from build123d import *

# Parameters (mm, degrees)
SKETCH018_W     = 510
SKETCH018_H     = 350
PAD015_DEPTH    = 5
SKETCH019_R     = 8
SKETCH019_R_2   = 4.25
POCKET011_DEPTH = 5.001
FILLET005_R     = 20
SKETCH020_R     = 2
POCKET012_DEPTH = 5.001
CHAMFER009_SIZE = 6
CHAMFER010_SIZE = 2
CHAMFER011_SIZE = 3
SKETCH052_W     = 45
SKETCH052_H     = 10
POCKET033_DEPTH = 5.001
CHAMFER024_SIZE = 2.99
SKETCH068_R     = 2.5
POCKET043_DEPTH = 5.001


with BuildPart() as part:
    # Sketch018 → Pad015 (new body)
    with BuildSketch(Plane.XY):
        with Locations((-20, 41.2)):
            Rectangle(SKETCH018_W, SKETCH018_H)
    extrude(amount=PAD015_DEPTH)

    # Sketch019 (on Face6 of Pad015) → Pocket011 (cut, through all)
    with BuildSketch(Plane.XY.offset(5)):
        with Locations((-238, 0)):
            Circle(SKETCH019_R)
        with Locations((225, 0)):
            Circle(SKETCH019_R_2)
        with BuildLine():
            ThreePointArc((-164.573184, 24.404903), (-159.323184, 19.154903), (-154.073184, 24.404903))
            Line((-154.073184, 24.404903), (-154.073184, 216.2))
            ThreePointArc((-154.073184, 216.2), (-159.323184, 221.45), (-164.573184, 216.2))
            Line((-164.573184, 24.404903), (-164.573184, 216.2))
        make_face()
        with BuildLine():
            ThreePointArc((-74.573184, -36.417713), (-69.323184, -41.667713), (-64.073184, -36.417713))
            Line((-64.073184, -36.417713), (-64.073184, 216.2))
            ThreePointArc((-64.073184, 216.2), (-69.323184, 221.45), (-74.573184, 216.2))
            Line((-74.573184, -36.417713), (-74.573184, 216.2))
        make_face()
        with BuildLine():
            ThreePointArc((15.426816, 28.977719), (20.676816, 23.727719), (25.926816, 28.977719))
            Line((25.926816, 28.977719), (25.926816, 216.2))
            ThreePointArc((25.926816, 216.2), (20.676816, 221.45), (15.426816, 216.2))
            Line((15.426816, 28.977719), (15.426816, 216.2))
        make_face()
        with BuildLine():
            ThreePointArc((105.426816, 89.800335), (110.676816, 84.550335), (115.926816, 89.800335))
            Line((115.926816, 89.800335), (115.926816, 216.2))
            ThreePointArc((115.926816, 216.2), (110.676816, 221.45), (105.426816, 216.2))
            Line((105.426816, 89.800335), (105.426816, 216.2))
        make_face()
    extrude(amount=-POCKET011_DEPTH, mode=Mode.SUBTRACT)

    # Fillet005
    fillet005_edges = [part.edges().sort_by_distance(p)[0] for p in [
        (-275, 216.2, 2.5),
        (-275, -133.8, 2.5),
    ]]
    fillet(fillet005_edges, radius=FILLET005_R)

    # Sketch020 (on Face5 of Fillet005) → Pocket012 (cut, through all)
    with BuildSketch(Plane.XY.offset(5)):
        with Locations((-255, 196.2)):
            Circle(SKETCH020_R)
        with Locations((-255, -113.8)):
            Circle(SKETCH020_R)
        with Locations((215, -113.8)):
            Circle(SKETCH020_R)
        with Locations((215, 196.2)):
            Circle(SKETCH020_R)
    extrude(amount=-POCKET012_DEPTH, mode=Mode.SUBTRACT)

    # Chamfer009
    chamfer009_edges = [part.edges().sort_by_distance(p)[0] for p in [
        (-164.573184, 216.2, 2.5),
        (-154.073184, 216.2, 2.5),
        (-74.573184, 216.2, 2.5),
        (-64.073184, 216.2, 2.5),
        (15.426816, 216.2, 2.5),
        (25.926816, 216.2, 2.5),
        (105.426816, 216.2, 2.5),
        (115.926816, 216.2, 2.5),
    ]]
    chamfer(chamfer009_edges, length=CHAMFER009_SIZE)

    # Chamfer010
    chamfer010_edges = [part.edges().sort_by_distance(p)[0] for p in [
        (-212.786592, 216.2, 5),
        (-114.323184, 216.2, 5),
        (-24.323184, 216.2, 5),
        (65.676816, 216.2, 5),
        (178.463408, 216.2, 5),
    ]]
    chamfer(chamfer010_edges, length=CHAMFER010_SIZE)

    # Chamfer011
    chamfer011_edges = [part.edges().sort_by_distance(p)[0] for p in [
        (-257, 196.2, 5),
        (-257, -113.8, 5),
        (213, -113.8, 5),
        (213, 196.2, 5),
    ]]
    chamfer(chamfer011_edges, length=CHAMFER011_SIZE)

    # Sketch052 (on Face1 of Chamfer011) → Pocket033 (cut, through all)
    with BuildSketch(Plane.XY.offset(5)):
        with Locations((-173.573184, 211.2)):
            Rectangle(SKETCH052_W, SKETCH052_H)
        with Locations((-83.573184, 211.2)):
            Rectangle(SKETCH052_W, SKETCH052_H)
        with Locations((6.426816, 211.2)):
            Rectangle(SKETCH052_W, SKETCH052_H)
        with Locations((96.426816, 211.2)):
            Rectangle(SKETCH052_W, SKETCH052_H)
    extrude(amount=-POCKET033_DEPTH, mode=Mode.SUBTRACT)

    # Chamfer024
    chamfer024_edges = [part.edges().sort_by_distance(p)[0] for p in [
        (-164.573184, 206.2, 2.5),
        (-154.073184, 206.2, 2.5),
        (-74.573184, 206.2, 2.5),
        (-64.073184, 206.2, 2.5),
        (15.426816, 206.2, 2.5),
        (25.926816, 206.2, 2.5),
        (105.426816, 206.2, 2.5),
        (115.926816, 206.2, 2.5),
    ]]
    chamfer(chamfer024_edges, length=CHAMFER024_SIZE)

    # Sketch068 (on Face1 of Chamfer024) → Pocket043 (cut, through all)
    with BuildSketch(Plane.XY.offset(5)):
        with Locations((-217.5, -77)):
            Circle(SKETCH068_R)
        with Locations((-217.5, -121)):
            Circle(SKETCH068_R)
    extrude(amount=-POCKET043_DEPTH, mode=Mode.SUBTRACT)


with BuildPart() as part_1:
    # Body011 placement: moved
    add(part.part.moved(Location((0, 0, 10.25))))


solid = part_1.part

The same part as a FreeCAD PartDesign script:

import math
import FreeCAD as App
import Part
import Sketcher
from FreeCAD import Vector


def edges_at(feature, points):
    """Names of the edges that pass closest to the given points."""
    edges = feature.Shape.Edges
    near = lambda p: min(range(len(edges)), key=lambda i: edges[i].distToShape(Part.Vertex(*p))[0])
    return sorted({f"Edge{near(p) + 1}" for p in points})

doc = App.newDocument("Part")
params = doc.addObject("Spreadsheet::Sheet", "Params")
for row, (alias, value) in enumerate([
    ("sketch1_width", "510 mm"),
    ("sketch1_height", "350 mm"),
    ("pad1_length", "5 mm"),
    ("sketch2_diameter", "16 mm"),
    ("sketch2_diameter2", "8.5 mm"),
    ("sketch2_radius", "5.25 mm"),
    ("fillet_radius", "20 mm"),
    ("sketch3_diameter", "4 mm"),
    ("chamfer_size", "6 mm"),
    ("chamfer2_size", "2 mm"),
    ("chamfer3_size", "3 mm"),
    ("sketch4_width", "45 mm"),
    ("sketch4_height", "10 mm"),
    ("chamfer4_size", "2.99 mm"),
    ("sketch5_diameter", "5 mm"),
], start=1):
    params.set(f"A{row}", alias)
    params.set(f"B{row}", "=" + value)
    params.setAlias(f"B{row}", alias)

body = doc.addObject("PartDesign::Body", "Body")

sketch1 = doc.addObject("Sketcher::SketchObject", "Sketch")
body.addObject(sketch1)
sketch1.AttachmentSupport = (doc.XY_Plane, [""])
sketch1.MapMode = "FlatFace"
sketch1.addGeometry([
    Part.LineSegment(Vector(-275, 216.2, 0), Vector(-275, -133.8, 0)),
    Part.LineSegment(Vector(-275, -133.8, 0), Vector(235, -133.8, 0)),
    Part.LineSegment(Vector(235, -133.8, 0), Vector(235, 216.2, 0)),
    Part.LineSegment(Vector(235, 216.2, 0), Vector(-275, 216.2, 0)),
], False)
sketch1.addConstraint([
    Sketcher.Constraint("Coincident", 0, 2, 1, 1),
    Sketcher.Constraint("Coincident", 1, 2, 2, 1),
    Sketcher.Constraint("Coincident", 2, 2, 3, 1),
    Sketcher.Constraint("Coincident", 3, 2, 0, 1),
    Sketcher.Constraint("Vertical", 0),
    Sketcher.Constraint("Horizontal", 1),
    Sketcher.Constraint("Vertical", 2),
    Sketcher.Constraint("Horizontal", 3),
    Sketcher.Constraint("DistanceX", 1, 1, 1, 2, 510.0),
    Sketcher.Constraint("DistanceY", 0, 2, 0, 1, 350.0),
    Sketcher.Constraint("DistanceX", 0, 2, -1, 1, 275.0),
    Sketcher.Constraint("DistanceY", 0, 2, -1, 1, 133.8),
])
sketch1.setExpression("Constraints[8]", "Params.sketch1_width")
sketch1.setExpression("Constraints[9]", "Params.sketch1_height")
pad1 = doc.addObject("PartDesign::Pad", "Pad")
body.addObject(pad1)
pad1.Profile = sketch1
pad1.setExpression("Length", "Params.pad1_length")

sketch2 = doc.addObject("Sketcher::SketchObject", "Sketch001")
body.addObject(sketch2)
sketch2.AttachmentSupport = (doc.XY_Plane, [""])
sketch2.MapMode = "FlatFace"
sketch2.AttachmentOffset = App.Placement(Vector(0, 0, 5), App.Rotation())
sketch2.addGeometry([
    Part.Circle(Vector(-238, 0, 0), Vector(0, 0, 1), 8),
    Part.Circle(Vector(225, 0, 0), Vector(0, 0, 1), 4.25),
    Part.ArcOfCircle(Part.Circle(Vector(-159.323184, 24.404903, 0), Vector(0, 0, 1), 5.25), math.radians(180), math.radians(360)),
    Part.LineSegment(Vector(-154.073184, 24.404903, 0), Vector(-154.073184, 216.2, 0)),
    Part.ArcOfCircle(Part.Circle(Vector(-159.323184, 216.2, 0), Vector(0, 0, 1), 5.25), math.radians(0), math.radians(180)),
    Part.LineSegment(Vector(-164.573184, 216.2, 0), Vector(-164.573184, 24.404903, 0)),
    Part.ArcOfCircle(Part.Circle(Vector(-69.323184, -36.417713, 0), Vector(0, 0, 1), 5.25), math.radians(180), math.radians(360)),
    Part.LineSegment(Vector(-64.073184, -36.417713, 0), Vector(-64.073184, 216.2, 0)),
    Part.ArcOfCircle(Part.Circle(Vector(-69.323184, 216.2, 0), Vector(0, 0, 1), 5.25), math.radians(0), math.radians(180)),
    Part.LineSegment(Vector(-74.573184, 216.2, 0), Vector(-74.573184, -36.417713, 0)),
    Part.ArcOfCircle(Part.Circle(Vector(20.676816, 28.977719, 0), Vector(0, 0, 1), 5.25), math.radians(180), math.radians(360)),
    Part.LineSegment(Vector(25.926816, 28.977719, 0), Vector(25.926816, 216.2, 0)),
    Part.ArcOfCircle(Part.Circle(Vector(20.676816, 216.2, 0), Vector(0, 0, 1), 5.25), math.radians(0), math.radians(180)),
    Part.LineSegment(Vector(15.426816, 216.2, 0), Vector(15.426816, 28.977719, 0)),
    Part.ArcOfCircle(Part.Circle(Vector(110.676816, 89.800335, 0), Vector(0, 0, 1), 5.25), math.radians(180), math.radians(360)),
    Part.LineSegment(Vector(115.926816, 89.800335, 0), Vector(115.926816, 216.2, 0)),
    Part.ArcOfCircle(Part.Circle(Vector(110.676816, 216.2, 0), Vector(0, 0, 1), 5.25), math.radians(0), math.radians(180)),
    Part.LineSegment(Vector(105.426816, 216.2, 0), Vector(105.426816, 89.800335, 0)),
], False)
sketch2.addConstraint([
    Sketcher.Constraint("Tangent", 2, 2, 3, 1),
    Sketcher.Constraint("Tangent", 3, 2, 4, 1),
    Sketcher.Constraint("Tangent", 4, 2, 5, 1),
    Sketcher.Constraint("Tangent", 5, 2, 2, 1),
    Sketcher.Constraint("Tangent", 6, 2, 7, 1),
    Sketcher.Constraint("Tangent", 7, 2, 8, 1),
    Sketcher.Constraint("Tangent", 8, 2, 9, 1),
    Sketcher.Constraint("Tangent", 9, 2, 6, 1),
    Sketcher.Constraint("Tangent", 10, 2, 11, 1),
    Sketcher.Constraint("Tangent", 11, 2, 12, 1),
    Sketcher.Constraint("Tangent", 12, 2, 13, 1),
    Sketcher.Constraint("Tangent", 13, 2, 10, 1),
    Sketcher.Constraint("Tangent", 14, 2, 15, 1),
    Sketcher.Constraint("Tangent", 15, 2, 16, 1),
    Sketcher.Constraint("Tangent", 16, 2, 17, 1),
    Sketcher.Constraint("Tangent", 17, 2, 14, 1),
    Sketcher.Constraint("Vertical", 3),
    Sketcher.Constraint("Vertical", 5),
    Sketcher.Constraint("Vertical", 7),
    Sketcher.Constraint("Vertical", 9),
    Sketcher.Constraint("Vertical", 11),
    Sketcher.Constraint("Vertical", 13),
    Sketcher.Constraint("Vertical", 15),
    Sketcher.Constraint("Vertical", 17),
    Sketcher.Constraint("Equal", 4, 6),
    Sketcher.Constraint("Equal", 8, 10),
    Sketcher.Constraint("Equal", 12, 14),
    Sketcher.Constraint("PointOnObject", 0, 3, -1),
    Sketcher.Constraint("PointOnObject", 1, 3, -1),
    Sketcher.Constraint("Horizontal", 4, 3, 8, 3),
    Sketcher.Constraint("Horizontal", 8, 3, 12, 3),
    Sketcher.Constraint("Horizontal", 12, 3, 16, 3),
    Sketcher.Constraint("Diameter", 0, 16.0),
    Sketcher.Constraint("Diameter", 1, 8.5),
    Sketcher.Constraint("Radius", 2, 5.25),
    Sketcher.Constraint("DistanceX", 0, 3, -1, 1, 238.0),
    Sketcher.Constraint("DistanceX", -1, 1, 1, 3, 225.0),
    Sketcher.Constraint("DistanceX", 2, 3, 6, 3, 90.0),
    Sketcher.Constraint("DistanceX", 6, 3, 10, 3, 90.0),
    Sketcher.Constraint("DistanceX", 10, 3, 14, 3, 90.0),
    Sketcher.Constraint("DistanceY", -1, 1, 4, 3, 216.2),
    Sketcher.Constraint("DistanceY", 11, 1, 11, 2, 187.222281),
    Sketcher.Constraint("DistanceY", 3, 1, 3, 2, 191.795097),
    Sketcher.Constraint("DistanceY", 7, 1, 7, 2, 252.617713),
    Sketcher.Constraint("DistanceY", 15, 1, 15, 2, 126.399665),
    Sketcher.Constraint("DistanceX", 2, 3, -1, 1, 159.323184),
])
sketch2.setExpression("Constraints[32]", "Params.sketch2_diameter")
sketch2.setExpression("Constraints[33]", "Params.sketch2_diameter2")
sketch2.setExpression("Constraints[34]", "Params.sketch2_radius")
pocket1 = doc.addObject("PartDesign::Pocket", "Pocket")
body.addObject(pocket1)
pocket1.Profile = sketch2
pocket1.Type = "ThroughAll"
doc.recompute()

fillet = doc.addObject("PartDesign::Fillet", "Fillet")
body.addObject(fillet)
fillet.Base = (pocket1, edges_at(pocket1, [(-275, 216.2, 2.5), (-275, -133.8, 2.5)]))
fillet.setExpression("Radius", "Params.fillet_radius")

sketch3 = doc.addObject("Sketcher::SketchObject", "Sketch002")
body.addObject(sketch3)
sketch3.AttachmentSupport = (doc.XY_Plane, [""])
sketch3.MapMode = "FlatFace"
sketch3.AttachmentOffset = App.Placement(Vector(0, 0, 5), App.Rotation())
sketch3.addGeometry([
    Part.Circle(Vector(-255, 196.2, 0), Vector(0, 0, 1), 2),
    Part.Circle(Vector(-255, -113.8, 0), Vector(0, 0, 1), 2),
    Part.Circle(Vector(215, -113.8, 0), Vector(0, 0, 1), 2),
    Part.Circle(Vector(215, 196.2, 0), Vector(0, 0, 1), 2),
], False)
sketch3.addConstraint([
    Sketcher.Constraint("Equal", 0, 1),
    Sketcher.Constraint("Equal", 1, 2),
    Sketcher.Constraint("Equal", 2, 3),
    Sketcher.Constraint("Horizontal", 1, 3, 2, 3),
    Sketcher.Constraint("Horizontal", 0, 3, 3, 3),
    Sketcher.Constraint("Vertical", 0, 3, 1, 3),
    Sketcher.Constraint("Vertical", 2, 3, 3, 3),
    Sketcher.Constraint("Diameter", 0, 4.0),
    Sketcher.Constraint("DistanceX", 0, 3, -1, 1, 255.0),
    Sketcher.Constraint("DistanceX", -1, 1, 2, 3, 215.0),
    Sketcher.Constraint("DistanceY", 1, 3, 0, 3, 310.0),
    Sketcher.Constraint("DistanceY", -1, 1, 0, 3, 196.2),
])
sketch3.setExpression("Constraints[7]", "Params.sketch3_diameter")
pocket2 = doc.addObject("PartDesign::Pocket", "Pocket001")
body.addObject(pocket2)
pocket2.Profile = sketch3
pocket2.Type = "ThroughAll"
doc.recompute()

chamfer = doc.addObject("PartDesign::Chamfer", "Chamfer")
body.addObject(chamfer)
chamfer.Base = (pocket2, edges_at(pocket2, [
    (-164.573, 216.2, 2.5),
    (-154.073, 216.2, 2.5),
    (-74.573, 216.2, 2.5),
    (-64.073, 216.2, 2.5),
    (15.427, 216.2, 2.5),
    (25.927, 216.2, 2.5),
    (105.427, 216.2, 2.5),
    (115.927, 216.2, 2.5),
]))
chamfer.setExpression("Size", "Params.chamfer_size")
doc.recompute()

chamfer2 = doc.addObject("PartDesign::Chamfer", "Chamfer001")
body.addObject(chamfer2)
chamfer2.Base = (chamfer, edges_at(chamfer, [
    (-212.787, 216.2, 5),
    (-114.323, 216.2, 5),
    (-24.323, 216.2, 5),
    (65.677, 216.2, 5),
    (178.463, 216.2, 5),
]))
chamfer2.setExpression("Size", "Params.chamfer2_size")
doc.recompute()

chamfer3 = doc.addObject("PartDesign::Chamfer", "Chamfer002")
body.addObject(chamfer3)
chamfer3.Base = (chamfer2, edges_at(chamfer2, [
    (-257, 196.2, 5),
    (-257, -113.8, 5),
    (213, -113.8, 5),
    (213, 196.2, 5),
]))
chamfer3.setExpression("Size", "Params.chamfer3_size")

sketch4 = doc.addObject("Sketcher::SketchObject", "Sketch003")
body.addObject(sketch4)
sketch4.AttachmentSupport = (doc.XY_Plane, [""])
sketch4.MapMode = "FlatFace"
sketch4.AttachmentOffset = App.Placement(Vector(0, 0, 5), App.Rotation())
sketch4.addGeometry([
    Part.LineSegment(Vector(-196.073184, 216.2, 0), Vector(-196.073184, 206.2, 0)),
    Part.LineSegment(Vector(-196.073184, 206.2, 0), Vector(-151.073184, 206.2, 0)),
    Part.LineSegment(Vector(-151.073184, 206.2, 0), Vector(-151.073184, 216.2, 0)),
    Part.LineSegment(Vector(-151.073184, 216.2, 0), Vector(-196.073184, 216.2, 0)),
    Part.LineSegment(Vector(-106.073184, 216.2, 0), Vector(-106.073184, 206.2, 0)),
    Part.LineSegment(Vector(-106.073184, 206.2, 0), Vector(-61.073184, 206.2, 0)),
    Part.LineSegment(Vector(-61.073184, 206.2, 0), Vector(-61.073184, 216.2, 0)),
    Part.LineSegment(Vector(-61.073184, 216.2, 0), Vector(-106.073184, 216.2, 0)),
    Part.LineSegment(Vector(-16.073184, 216.2, 0), Vector(-16.073184, 206.2, 0)),
    Part.LineSegment(Vector(-16.073184, 206.2, 0), Vector(28.926816, 206.2, 0)),
    Part.LineSegment(Vector(28.926816, 206.2, 0), Vector(28.926816, 216.2, 0)),
    Part.LineSegment(Vector(28.926816, 216.2, 0), Vector(-16.073184, 216.2, 0)),
    Part.LineSegment(Vector(73.926816, 216.2, 0), Vector(73.926816, 206.2, 0)),
    Part.LineSegment(Vector(73.926816, 206.2, 0), Vector(118.926816, 206.2, 0)),
    Part.LineSegment(Vector(118.926816, 206.2, 0), Vector(118.926816, 216.2, 0)),
    Part.LineSegment(Vector(118.926816, 216.2, 0), Vector(73.926816, 216.2, 0)),
], False)
sketch4.addConstraint([
    Sketcher.Constraint("Coincident", 0, 2, 1, 1),
    Sketcher.Constraint("Coincident", 1, 2, 2, 1),
    Sketcher.Constraint("Coincident", 2, 2, 3, 1),
    Sketcher.Constraint("Coincident", 3, 2, 0, 1),
    Sketcher.Constraint("Coincident", 4, 2, 5, 1),
    Sketcher.Constraint("Coincident", 5, 2, 6, 1),
    Sketcher.Constraint("Coincident", 6, 2, 7, 1),
    Sketcher.Constraint("Coincident", 7, 2, 4, 1),
    Sketcher.Constraint("Coincident", 8, 2, 9, 1),
    Sketcher.Constraint("Coincident", 9, 2, 10, 1),
    Sketcher.Constraint("Coincident", 10, 2, 11, 1),
    Sketcher.Constraint("Coincident", 11, 2, 8, 1),
    Sketcher.Constraint("Coincident", 12, 2, 13, 1),
    Sketcher.Constraint("Coincident", 13, 2, 14, 1),
    Sketcher.Constraint("Coincident", 14, 2, 15, 1),
    Sketcher.Constraint("Coincident", 15, 2, 12, 1),
    Sketcher.Constraint("Vertical", 0),
    Sketcher.Constraint("Horizontal", 1),
    Sketcher.Constraint("Vertical", 2),
    Sketcher.Constraint("Horizontal", 3),
    Sketcher.Constraint("Vertical", 4),
    Sketcher.Constraint("Horizontal", 5),
    Sketcher.Constraint("Vertical", 6),
    Sketcher.Constraint("Horizontal", 7),
    Sketcher.Constraint("Vertical", 8),
    Sketcher.Constraint("Horizontal", 9),
    Sketcher.Constraint("Vertical", 10),
    Sketcher.Constraint("Horizontal", 11),
    Sketcher.Constraint("Vertical", 12),
    Sketcher.Constraint("Horizontal", 13),
    Sketcher.Constraint("Vertical", 14),
    Sketcher.Constraint("Horizontal", 15),
    Sketcher.Constraint("Horizontal", 1, 2, 4, 2),
    Sketcher.Constraint("Horizontal", 3, 2, 6, 2),
    Sketcher.Constraint("Horizontal", 5, 2, 8, 2),
    Sketcher.Constraint("Horizontal", 7, 2, 10, 2),
    Sketcher.Constraint("Horizontal", 9, 2, 12, 2),
    Sketcher.Constraint("Horizontal", 11, 2, 14, 2),
    Sketcher.Constraint("Equal", 3, 5),
    Sketcher.Constraint("Equal", 7, 9),
    Sketcher.Constraint("Equal", 11, 13),
    Sketcher.Constraint("DistanceX", 1, 1, 1, 2, 45.0),
    Sketcher.Constraint("DistanceY", 0, 2, 0, 1, 10.0),
    Sketcher.Constraint("DistanceX", 1, 2, 4, 2, 45.0),
    Sketcher.Constraint("DistanceX", 5, 2, 8, 2, 45.0),
    Sketcher.Constraint("DistanceX", 9, 2, 12, 2, 45.0),
    Sketcher.Constraint("DistanceY", -1, 1, 0, 2, 206.2),
    Sketcher.Constraint("DistanceX", 0, 2, -1, 1, 196.073184),
])
sketch4.setExpression("Constraints[41]", "Params.sketch4_width")
sketch4.setExpression("Constraints[42]", "Params.sketch4_height")
pocket3 = doc.addObject("PartDesign::Pocket", "Pocket002")
body.addObject(pocket3)
pocket3.Profile = sketch4
pocket3.Type = "ThroughAll"
doc.recompute()

chamfer4 = doc.addObject("PartDesign::Chamfer", "Chamfer003")
body.addObject(chamfer4)
chamfer4.Base = (pocket3, edges_at(pocket3, [
    (-164.573, 206.2, 2.5),
    (-154.073, 206.2, 2.5),
    (-74.573, 206.2, 2.5),
    (-64.073, 206.2, 2.5),
    (15.427, 206.2, 2.5),
    (25.927, 206.2, 2.5),
    (105.427, 206.2, 2.5),
    (115.927, 206.2, 2.5),
]))
chamfer4.setExpression("Size", "Params.chamfer4_size")

sketch5 = doc.addObject("Sketcher::SketchObject", "Sketch004")
body.addObject(sketch5)
sketch5.AttachmentSupport = (doc.XY_Plane, [""])
sketch5.MapMode = "FlatFace"
sketch5.AttachmentOffset = App.Placement(Vector(0, 0, 5), App.Rotation())
sketch5.addGeometry([
    Part.Circle(Vector(-217.5, -77, 0), Vector(0, 0, 1), 2.5),
    Part.Circle(Vector(-217.5, -121, 0), Vector(0, 0, 1), 2.5),
], False)
sketch5.addConstraint([
    Sketcher.Constraint("Equal", 0, 1),
    Sketcher.Constraint("Vertical", 0, 3, 1, 3),
    Sketcher.Constraint("Diameter", 0, 5.0),
    Sketcher.Constraint("DistanceY", 0, 3, -1, 1, 77.0),
    Sketcher.Constraint("DistanceY", 1, 3, -1, 1, 121.0),
    Sketcher.Constraint("DistanceX", 0, 3, -1, 1, 217.5),
])
sketch5.setExpression("Constraints[2]", "Params.sketch5_diameter")
pocket4 = doc.addObject("PartDesign::Pocket", "Pocket003")
body.addObject(pocket4)
pocket4.Profile = sketch5
pocket4.Type = "ThroughAll"
body2 = doc.addObject("PartDesign::Body", "Body001")
doc.recompute()

body.Placement = App.Placement(Vector(0, 0, 10.25), App.Rotation(Vector(0, 0, 1), 0))
boolean = doc.addObject("PartDesign::Boolean", "Boolean")
body2.addObject(boolean)
boolean.Type = "Fuse"
boolean.addObjects([body])

doc.recompute()
